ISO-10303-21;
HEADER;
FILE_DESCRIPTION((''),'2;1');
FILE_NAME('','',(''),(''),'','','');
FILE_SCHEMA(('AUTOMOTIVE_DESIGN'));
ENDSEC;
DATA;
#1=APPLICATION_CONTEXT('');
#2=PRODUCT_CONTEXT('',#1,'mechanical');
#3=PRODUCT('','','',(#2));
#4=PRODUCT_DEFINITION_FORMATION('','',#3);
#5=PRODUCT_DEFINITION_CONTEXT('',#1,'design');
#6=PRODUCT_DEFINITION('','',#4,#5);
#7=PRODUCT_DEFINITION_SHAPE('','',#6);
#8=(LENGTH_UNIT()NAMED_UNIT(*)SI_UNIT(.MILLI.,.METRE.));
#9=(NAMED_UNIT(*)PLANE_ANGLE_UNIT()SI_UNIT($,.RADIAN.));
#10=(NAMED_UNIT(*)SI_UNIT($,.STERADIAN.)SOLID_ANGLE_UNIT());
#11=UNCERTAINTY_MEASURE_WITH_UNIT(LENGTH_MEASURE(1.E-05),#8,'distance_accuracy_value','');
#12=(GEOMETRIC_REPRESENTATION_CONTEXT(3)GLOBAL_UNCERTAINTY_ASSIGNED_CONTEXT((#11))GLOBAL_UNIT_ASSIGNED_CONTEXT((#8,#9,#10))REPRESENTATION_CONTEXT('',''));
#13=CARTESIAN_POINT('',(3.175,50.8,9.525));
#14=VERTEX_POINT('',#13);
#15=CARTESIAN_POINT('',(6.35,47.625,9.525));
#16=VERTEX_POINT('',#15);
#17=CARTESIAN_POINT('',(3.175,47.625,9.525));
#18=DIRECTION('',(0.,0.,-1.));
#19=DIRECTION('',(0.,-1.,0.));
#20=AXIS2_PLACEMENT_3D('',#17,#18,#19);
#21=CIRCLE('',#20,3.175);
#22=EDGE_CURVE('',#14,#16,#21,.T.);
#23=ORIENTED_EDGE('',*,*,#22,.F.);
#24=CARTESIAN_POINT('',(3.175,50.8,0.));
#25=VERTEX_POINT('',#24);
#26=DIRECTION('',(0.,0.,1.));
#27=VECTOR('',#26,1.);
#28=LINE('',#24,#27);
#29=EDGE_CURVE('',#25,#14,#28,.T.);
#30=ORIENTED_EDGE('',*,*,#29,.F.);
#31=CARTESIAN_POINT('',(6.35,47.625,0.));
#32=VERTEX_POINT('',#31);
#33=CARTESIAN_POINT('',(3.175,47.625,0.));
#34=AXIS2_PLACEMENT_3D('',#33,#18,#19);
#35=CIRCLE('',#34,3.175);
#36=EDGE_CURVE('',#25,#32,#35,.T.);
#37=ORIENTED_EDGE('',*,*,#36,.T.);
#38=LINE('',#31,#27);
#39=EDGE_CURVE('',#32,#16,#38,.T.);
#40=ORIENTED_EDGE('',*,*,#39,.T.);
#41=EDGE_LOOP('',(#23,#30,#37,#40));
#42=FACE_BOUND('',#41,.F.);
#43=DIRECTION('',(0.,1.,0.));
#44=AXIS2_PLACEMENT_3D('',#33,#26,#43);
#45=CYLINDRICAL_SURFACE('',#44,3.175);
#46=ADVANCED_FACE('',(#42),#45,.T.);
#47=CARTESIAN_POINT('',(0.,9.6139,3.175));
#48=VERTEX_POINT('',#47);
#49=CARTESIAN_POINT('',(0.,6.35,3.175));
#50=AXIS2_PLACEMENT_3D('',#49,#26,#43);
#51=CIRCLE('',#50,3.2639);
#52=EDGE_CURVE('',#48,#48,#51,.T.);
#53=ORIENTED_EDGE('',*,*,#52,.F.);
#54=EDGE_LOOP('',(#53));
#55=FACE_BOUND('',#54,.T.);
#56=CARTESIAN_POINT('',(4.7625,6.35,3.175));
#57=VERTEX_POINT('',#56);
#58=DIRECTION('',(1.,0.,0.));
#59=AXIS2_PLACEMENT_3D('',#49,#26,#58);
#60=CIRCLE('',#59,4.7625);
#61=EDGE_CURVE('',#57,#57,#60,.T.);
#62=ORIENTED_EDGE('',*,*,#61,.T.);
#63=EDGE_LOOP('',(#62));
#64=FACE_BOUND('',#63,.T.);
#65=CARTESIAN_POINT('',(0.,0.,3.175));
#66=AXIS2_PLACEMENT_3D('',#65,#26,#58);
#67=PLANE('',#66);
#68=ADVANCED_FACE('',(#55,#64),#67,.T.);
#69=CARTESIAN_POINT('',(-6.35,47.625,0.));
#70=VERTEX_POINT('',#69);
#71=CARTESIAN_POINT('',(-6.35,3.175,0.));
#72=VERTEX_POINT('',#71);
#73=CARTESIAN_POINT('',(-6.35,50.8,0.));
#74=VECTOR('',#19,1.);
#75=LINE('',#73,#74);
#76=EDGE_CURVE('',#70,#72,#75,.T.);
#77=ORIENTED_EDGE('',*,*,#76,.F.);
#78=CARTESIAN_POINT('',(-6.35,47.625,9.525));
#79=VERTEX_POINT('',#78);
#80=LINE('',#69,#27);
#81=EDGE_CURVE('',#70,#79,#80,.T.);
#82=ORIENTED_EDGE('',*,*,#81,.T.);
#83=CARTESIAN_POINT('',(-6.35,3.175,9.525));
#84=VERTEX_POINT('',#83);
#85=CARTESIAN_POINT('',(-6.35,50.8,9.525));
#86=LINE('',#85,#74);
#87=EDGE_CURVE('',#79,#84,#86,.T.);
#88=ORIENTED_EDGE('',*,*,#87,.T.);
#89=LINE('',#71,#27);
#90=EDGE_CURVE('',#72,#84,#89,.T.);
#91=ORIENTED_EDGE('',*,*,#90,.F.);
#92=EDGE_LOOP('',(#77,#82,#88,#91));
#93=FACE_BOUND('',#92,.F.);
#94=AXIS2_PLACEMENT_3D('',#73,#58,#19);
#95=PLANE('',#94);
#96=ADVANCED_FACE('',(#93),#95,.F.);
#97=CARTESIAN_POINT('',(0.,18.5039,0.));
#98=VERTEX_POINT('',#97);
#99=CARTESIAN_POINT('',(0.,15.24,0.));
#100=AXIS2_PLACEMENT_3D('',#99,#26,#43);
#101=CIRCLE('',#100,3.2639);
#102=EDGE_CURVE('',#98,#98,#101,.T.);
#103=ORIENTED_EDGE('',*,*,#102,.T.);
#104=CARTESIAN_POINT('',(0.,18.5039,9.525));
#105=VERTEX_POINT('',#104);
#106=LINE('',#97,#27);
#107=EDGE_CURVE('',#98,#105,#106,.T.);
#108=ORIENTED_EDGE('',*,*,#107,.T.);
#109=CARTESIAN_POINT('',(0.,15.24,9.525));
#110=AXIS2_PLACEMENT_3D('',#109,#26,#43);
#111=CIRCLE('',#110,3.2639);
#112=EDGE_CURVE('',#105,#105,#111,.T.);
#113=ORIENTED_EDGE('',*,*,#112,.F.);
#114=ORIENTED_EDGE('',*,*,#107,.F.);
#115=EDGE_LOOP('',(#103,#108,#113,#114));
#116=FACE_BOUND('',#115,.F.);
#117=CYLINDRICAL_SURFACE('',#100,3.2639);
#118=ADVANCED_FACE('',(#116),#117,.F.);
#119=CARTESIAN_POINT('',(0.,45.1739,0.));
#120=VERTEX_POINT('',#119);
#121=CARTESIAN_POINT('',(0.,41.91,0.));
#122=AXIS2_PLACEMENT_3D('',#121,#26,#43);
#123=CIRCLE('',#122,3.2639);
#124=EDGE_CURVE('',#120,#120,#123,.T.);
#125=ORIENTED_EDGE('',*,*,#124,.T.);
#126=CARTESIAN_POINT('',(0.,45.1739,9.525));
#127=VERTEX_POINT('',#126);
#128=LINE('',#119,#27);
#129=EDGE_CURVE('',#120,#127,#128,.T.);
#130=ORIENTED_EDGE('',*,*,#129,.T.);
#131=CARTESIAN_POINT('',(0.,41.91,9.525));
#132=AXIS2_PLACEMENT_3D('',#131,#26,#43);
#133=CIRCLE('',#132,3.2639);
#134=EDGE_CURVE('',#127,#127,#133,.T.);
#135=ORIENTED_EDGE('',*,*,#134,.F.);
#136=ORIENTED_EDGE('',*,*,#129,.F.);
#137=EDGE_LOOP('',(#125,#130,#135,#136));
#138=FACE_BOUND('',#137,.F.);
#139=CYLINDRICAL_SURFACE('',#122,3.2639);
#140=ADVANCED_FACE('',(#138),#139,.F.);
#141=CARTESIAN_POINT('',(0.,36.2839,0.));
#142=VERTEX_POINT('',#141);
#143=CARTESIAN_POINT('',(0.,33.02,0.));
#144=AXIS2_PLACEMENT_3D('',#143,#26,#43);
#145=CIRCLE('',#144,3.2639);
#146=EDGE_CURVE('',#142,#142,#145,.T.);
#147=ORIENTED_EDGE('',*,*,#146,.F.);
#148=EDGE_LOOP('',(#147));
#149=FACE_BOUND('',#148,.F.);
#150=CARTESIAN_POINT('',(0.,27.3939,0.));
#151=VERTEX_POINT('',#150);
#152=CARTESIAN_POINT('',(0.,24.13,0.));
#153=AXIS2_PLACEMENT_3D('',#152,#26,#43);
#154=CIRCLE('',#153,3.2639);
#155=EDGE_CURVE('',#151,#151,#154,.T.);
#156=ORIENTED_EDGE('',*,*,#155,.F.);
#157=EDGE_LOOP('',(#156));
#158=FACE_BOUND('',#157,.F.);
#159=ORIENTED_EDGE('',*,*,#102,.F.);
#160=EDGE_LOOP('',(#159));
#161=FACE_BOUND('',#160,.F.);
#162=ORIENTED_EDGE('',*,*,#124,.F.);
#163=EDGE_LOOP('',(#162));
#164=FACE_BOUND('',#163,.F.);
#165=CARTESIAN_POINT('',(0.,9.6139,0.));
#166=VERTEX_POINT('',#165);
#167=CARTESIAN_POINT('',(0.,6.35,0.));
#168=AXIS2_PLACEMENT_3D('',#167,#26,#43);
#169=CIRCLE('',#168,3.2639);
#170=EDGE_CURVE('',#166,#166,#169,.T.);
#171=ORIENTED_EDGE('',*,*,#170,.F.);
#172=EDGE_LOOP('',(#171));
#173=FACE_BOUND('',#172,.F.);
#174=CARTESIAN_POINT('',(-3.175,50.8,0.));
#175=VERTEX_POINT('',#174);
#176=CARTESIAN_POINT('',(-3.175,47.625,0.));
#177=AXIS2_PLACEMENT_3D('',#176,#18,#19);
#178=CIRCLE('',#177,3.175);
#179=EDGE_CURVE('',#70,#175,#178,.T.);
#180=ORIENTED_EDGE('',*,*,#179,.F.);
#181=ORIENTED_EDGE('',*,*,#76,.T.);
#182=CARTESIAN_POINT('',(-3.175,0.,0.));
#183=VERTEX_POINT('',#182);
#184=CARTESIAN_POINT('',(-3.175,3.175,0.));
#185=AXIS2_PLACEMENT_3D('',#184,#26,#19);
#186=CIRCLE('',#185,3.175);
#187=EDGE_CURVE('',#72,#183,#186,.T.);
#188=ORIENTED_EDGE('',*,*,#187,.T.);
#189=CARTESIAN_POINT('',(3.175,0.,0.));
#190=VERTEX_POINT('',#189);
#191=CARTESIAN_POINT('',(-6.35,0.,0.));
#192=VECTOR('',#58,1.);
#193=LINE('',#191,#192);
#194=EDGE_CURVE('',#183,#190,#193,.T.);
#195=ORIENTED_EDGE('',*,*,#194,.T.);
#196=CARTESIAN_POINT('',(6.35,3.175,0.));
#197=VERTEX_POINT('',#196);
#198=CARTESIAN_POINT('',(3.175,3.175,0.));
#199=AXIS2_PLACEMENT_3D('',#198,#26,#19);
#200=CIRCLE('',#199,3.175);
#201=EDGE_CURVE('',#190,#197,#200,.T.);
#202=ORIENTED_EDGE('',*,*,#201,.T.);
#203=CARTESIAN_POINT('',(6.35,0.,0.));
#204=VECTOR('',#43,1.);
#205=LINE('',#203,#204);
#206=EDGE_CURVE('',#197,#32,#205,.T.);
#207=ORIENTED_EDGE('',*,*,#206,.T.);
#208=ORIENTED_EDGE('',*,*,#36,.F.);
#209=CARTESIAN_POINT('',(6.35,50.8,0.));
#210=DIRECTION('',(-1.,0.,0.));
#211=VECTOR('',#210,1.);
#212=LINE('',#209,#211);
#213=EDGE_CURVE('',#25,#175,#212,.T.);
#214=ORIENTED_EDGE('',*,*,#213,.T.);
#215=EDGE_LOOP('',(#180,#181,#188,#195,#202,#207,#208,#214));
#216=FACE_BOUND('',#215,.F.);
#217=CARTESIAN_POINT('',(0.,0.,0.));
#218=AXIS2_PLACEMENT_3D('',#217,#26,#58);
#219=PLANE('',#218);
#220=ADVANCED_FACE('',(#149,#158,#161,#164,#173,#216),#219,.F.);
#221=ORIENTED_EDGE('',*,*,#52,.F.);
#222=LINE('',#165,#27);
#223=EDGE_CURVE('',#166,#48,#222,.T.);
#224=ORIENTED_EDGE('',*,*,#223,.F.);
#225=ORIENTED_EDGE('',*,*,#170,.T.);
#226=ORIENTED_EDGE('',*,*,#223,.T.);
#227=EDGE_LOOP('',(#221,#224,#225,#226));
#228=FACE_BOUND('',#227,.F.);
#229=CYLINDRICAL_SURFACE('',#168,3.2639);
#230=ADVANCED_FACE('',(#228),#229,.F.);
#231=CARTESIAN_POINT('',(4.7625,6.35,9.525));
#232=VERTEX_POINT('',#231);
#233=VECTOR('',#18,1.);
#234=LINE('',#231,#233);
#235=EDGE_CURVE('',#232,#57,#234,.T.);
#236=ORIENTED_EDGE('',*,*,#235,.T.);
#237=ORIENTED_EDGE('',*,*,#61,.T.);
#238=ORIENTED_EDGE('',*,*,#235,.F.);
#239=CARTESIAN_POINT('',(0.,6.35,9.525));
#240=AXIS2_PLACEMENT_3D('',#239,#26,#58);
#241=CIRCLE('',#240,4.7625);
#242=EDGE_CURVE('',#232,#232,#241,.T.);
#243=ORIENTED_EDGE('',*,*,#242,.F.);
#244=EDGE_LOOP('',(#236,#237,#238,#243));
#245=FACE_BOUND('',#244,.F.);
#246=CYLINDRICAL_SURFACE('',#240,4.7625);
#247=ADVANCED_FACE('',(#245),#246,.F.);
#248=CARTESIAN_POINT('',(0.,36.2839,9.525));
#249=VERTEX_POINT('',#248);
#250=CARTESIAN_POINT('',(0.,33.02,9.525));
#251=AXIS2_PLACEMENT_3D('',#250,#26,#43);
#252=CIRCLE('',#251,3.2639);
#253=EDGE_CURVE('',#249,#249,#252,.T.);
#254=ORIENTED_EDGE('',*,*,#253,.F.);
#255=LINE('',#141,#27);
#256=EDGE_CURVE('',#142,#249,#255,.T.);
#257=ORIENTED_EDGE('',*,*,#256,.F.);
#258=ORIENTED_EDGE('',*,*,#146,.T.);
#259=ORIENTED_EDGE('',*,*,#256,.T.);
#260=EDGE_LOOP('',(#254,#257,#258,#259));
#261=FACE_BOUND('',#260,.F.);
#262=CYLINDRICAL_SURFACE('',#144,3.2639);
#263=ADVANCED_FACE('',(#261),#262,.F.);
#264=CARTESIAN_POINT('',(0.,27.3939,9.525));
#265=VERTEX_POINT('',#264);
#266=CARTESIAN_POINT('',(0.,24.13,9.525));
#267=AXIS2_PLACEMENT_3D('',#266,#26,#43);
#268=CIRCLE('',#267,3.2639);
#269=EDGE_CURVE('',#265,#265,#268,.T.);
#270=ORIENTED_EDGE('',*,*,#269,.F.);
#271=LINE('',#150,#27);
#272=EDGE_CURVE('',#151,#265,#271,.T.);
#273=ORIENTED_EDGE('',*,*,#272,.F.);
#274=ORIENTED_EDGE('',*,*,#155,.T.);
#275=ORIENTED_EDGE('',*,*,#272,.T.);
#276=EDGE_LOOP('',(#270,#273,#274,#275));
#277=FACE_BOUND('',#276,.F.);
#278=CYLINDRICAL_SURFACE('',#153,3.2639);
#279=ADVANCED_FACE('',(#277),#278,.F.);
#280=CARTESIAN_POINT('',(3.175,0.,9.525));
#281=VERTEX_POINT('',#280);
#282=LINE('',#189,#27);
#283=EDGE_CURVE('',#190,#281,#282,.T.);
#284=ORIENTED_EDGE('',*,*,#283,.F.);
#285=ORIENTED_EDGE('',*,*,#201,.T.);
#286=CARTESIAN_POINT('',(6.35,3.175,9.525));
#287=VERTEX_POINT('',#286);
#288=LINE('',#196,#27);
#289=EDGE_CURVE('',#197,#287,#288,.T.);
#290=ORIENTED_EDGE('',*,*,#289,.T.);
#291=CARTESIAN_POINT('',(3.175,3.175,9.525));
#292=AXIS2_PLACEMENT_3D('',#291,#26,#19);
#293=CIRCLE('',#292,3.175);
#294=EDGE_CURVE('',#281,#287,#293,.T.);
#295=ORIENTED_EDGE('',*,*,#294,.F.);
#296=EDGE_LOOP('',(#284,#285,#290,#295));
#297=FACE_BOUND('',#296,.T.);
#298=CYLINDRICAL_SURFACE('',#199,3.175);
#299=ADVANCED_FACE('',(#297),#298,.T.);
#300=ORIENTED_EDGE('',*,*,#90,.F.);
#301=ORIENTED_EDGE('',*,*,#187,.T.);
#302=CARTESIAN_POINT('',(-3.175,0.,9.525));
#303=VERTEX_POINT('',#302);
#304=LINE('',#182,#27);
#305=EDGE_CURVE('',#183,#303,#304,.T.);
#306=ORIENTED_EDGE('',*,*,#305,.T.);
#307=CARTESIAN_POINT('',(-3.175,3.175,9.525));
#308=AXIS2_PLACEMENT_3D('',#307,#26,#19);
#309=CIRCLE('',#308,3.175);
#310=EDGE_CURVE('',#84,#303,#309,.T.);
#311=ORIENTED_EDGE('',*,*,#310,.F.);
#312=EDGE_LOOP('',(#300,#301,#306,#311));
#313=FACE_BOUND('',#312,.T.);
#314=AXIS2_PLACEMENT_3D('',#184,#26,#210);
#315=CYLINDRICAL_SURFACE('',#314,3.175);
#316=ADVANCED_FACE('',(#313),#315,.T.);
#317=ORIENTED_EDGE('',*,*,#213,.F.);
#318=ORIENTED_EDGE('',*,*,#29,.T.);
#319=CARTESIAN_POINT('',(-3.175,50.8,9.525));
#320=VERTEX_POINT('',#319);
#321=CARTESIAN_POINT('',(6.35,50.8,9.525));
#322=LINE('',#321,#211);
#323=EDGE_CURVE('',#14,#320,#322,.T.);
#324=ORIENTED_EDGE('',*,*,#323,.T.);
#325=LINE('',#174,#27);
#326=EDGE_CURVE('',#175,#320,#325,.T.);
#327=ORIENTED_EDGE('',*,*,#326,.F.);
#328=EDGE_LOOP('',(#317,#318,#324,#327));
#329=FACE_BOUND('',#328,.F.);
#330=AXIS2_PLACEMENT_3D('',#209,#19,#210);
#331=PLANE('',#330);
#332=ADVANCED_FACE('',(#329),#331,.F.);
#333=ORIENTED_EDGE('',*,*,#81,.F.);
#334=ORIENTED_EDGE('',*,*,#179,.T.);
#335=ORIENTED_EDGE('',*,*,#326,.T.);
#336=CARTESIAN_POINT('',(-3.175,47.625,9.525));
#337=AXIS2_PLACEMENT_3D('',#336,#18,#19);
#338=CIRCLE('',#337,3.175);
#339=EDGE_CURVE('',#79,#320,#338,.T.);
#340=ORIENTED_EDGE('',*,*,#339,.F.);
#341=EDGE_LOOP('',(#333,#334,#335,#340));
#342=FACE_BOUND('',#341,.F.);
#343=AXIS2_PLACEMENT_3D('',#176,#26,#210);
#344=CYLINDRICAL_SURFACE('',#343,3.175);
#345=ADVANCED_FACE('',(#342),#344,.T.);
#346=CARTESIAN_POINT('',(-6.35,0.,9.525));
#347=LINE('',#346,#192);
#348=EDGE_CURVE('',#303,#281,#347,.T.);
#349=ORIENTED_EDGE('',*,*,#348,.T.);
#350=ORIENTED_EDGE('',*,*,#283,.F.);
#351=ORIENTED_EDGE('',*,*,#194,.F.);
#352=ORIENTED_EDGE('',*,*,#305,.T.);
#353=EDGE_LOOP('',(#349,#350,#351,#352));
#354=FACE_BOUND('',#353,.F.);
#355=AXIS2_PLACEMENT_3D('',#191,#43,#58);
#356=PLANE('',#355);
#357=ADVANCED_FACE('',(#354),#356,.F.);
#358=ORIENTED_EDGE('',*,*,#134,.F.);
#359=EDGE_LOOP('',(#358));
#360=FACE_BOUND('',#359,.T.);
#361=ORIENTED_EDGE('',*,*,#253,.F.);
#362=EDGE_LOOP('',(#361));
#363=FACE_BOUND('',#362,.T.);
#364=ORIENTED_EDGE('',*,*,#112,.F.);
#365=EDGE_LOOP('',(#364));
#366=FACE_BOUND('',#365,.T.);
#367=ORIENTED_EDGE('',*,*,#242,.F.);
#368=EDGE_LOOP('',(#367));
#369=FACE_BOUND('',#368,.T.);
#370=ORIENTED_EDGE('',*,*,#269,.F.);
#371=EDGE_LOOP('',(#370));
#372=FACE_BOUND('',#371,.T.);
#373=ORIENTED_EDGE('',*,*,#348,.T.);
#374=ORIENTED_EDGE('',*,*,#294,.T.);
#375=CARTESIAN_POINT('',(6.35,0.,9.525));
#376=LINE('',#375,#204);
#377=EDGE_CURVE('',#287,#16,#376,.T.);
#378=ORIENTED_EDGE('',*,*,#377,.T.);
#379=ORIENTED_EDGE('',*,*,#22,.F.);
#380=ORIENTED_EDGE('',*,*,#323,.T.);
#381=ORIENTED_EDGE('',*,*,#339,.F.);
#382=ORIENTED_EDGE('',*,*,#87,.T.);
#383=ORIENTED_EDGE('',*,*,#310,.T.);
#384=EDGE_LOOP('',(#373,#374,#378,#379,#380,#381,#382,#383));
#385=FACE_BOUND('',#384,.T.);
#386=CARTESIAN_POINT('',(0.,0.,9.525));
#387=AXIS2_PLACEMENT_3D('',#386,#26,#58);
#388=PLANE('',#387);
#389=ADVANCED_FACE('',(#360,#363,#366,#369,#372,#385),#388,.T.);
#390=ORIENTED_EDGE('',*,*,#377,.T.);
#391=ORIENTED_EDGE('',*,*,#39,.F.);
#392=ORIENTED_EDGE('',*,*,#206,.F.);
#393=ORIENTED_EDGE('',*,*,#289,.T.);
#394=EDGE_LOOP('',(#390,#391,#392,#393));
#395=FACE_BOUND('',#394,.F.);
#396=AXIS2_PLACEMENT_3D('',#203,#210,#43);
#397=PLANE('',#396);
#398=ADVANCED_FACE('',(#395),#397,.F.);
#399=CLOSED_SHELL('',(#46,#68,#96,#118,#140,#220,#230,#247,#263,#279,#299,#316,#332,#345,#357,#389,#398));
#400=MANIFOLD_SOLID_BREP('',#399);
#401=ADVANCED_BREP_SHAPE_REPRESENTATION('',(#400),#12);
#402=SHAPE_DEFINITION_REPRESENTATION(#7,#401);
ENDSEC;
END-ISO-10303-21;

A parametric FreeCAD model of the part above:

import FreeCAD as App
import Part
import Sketcher
from FreeCAD import Vector
Q = App.Units.Quantity


def edges_at(feature, points):
    """Names of the edges that pass closest to the given points."""
    edges = feature.Shape.Edges
    near = lambda p: min(range(len(edges)), key=lambda i: edges[i].distToShape(Part.Vertex(*p))[0])
    return sorted({f"Edge{near(p) + 1}" for p in points})


def add_polygon(sketch, points):
    """Adds a closed chain of lines whose ends are joined by coincident constraints."""
    first, n = sketch.GeometryCount, len(points)
    for a, b in zip(points, points[1:] + points[:1]):
        sketch.addGeometry(Part.LineSegment(App.Vector(*a, 0), App.Vector(*b, 0)), False)
    for i in range(n):
        sketch.addConstraint(Sketcher.Constraint("Coincident", first + i, 2, first + (i + 1) % n, 1))

doc = App.newDocument("Part")
params = doc.addObject("Spreadsheet::Sheet", "Params")
for row, (alias, value) in enumerate([
    ("sketch1_height", "2 in"),
    ("sketch1_width", "0.5 in"),
    ("pad1_length", "0.375 in"),
    ("sketch2_diameter", "0.257 in"),
    ("hole_diameter", "0.257 in"),
    ("sketch3_diameter", "0.375 in"),
    ("sketch3_diameter2", "0.257 in"),
    ("pocket1_length", "0.25 in"),
    ("fillet_radius", "0.125 in"),
    ("linearpattern_pitch", "0.35 in"),
], start=1):
    params.set(f"A{row}", alias)
    params.set(f"B{row}", "=" + value)
    params.setAlias(f"B{row}", alias)

body = doc.addObject("PartDesign::Body", "Body")

sketch1 = body.newObject("Sketcher::SketchObject", "Sketch")
sketch1.AttachmentSupport = (doc.getObject("XY_Plane"), [""])
sketch1.MapMode = "FlatFace"
add_polygon(sketch1, [(-6, 51), (-6, 0), (6, 0), (6, 51)])
sketch1.addConstraint(Sketcher.Constraint("Vertical", 0))
sketch1.addConstraint(Sketcher.Constraint("Horizontal", 1))
sketch1.addConstraint(Sketcher.Constraint("Vertical", 2))
sketch1.addConstraint(Sketcher.Constraint("Horizontal", 3))
sketch1.addConstraint(Sketcher.Constraint("Symmetric", 0, 2, 1, 2, -1, 1))
sketch1.addConstraint(Sketcher.Constraint("DistanceY", 0, 2, 0, 1, Q("2 in")))
sketch1.addConstraint(Sketcher.Constraint("DistanceX", 1, 1, 1, 2, Q("0.5 in")))
sketch1.setExpression("Constraints[9]", "Params.sketch1_height")
sketch1.setExpression("Constraints[10]", "Params.sketch1_width")
pad1 = body.newObject("PartDesign::Pad", "Pad")
pad1.Profile = sketch1
pad1.setExpression("Length", "Params.pad1_length")

sketch2 = body.newObject("Sketcher::SketchObject", "Sketch001")
sketch2.AttachmentSupport = (doc.getObject("XY_Plane"), [""])
sketch2.MapMode = "FlatFace"
sketch2.addGeometry(Part.Circle(Vector(0, 6.3, 0), Vector(0, 0, 1), 3.3), False)
sketch2.addConstraint(Sketcher.Constraint("PointOnObject", 0, 3, -2))
sketch2.addConstraint(Sketcher.Constraint("Diameter", 0, Q("0.257 in")))
sketch2.addConstraint(Sketcher.Constraint("DistanceY", -1, 1, 0, 3, Q("0.25 in")))
sketch2.setExpression("Constraints[1]", "Params.sketch2_diameter")
doc.recompute()
hole = body.newObject("PartDesign::Hole", "Hole")
hole.Profile = sketch2
hole.ThreadType = "None"
hole.setExpression("Diameter", "Params.hole_diameter")
hole.DepthType = "ThroughAll"
hole.Reversed = True

sketch3 = body.newObject("Sketcher::SketchObject", "Sketch002")
sketch3.AttachmentSupport = (doc.getObject("XY_Plane"), [""])
sketch3.MapMode = "FlatFace"
sketch3.AttachmentOffset = App.Placement(Vector(0, 0, 0.375 * 25.4), App.Rotation())
sketch3.addGeometry(Part.Circle(Vector(0, 6.3, 0), Vector(0, 0, 1), 4.8), False)
sketch3.addGeometry(Part.Circle(Vector(0, 6.3, 0), Vector(0, 0, 1), 3.3), False)
sketch3.addConstraint(Sketcher.Constraint("Coincident", 1, 3, 0, 3))
sketch3.addConstraint(Sketcher.Constraint("PointOnObject", 0, 3, -2))
sketch3.addConstraint(Sketcher.Constraint("Diameter", 0, Q("0.375 in")))
sketch3.addConstraint(Sketcher.Constraint("Diameter", 1, Q("0.257 in")))
sketch3.addConstraint(Sketcher.Constraint("DistanceY", -1, 1, 0, 3, Q("0.25 in")))
sketch3.setExpression("Constraints[2]", "Params.sketch3_diameter")
sketch3.setExpression("Constraints[3]", "Params.sketch3_diameter2")
pocket1 = body.newObject("PartDesign::Pocket", "Pocket")
pocket1.Profile = sketch3
pocket1.setExpression("Length", "Params.pocket1_length")
doc.recompute()

fillet = body.newObject("PartDesign::Fillet", "Fillet")
fillet.Base = (pocket1, edges_at(pocket1, [
    (-6.35, 50.8, 4.763),
    (6.35, 50.8, 4.763),
    (6.35, 0, 4.763),
    (-6.35, 0, 4.763),
]))
fillet.setExpression("Radius", "Params.fillet_radius")
doc.recompute()

linearpattern = body.newObject("PartDesign::LinearPattern", "LinearPattern")
linearpattern.Originals = [hole]
linearpattern.Direction = (doc.getObject("Y_Axis"), [""])
linearpattern.Mode = "offset"
linearpattern.setExpression("Offset", "Params.linearpattern_pitch")
linearpattern.Occurrences = 5
body.Tip = linearpattern

doc.recompute()
